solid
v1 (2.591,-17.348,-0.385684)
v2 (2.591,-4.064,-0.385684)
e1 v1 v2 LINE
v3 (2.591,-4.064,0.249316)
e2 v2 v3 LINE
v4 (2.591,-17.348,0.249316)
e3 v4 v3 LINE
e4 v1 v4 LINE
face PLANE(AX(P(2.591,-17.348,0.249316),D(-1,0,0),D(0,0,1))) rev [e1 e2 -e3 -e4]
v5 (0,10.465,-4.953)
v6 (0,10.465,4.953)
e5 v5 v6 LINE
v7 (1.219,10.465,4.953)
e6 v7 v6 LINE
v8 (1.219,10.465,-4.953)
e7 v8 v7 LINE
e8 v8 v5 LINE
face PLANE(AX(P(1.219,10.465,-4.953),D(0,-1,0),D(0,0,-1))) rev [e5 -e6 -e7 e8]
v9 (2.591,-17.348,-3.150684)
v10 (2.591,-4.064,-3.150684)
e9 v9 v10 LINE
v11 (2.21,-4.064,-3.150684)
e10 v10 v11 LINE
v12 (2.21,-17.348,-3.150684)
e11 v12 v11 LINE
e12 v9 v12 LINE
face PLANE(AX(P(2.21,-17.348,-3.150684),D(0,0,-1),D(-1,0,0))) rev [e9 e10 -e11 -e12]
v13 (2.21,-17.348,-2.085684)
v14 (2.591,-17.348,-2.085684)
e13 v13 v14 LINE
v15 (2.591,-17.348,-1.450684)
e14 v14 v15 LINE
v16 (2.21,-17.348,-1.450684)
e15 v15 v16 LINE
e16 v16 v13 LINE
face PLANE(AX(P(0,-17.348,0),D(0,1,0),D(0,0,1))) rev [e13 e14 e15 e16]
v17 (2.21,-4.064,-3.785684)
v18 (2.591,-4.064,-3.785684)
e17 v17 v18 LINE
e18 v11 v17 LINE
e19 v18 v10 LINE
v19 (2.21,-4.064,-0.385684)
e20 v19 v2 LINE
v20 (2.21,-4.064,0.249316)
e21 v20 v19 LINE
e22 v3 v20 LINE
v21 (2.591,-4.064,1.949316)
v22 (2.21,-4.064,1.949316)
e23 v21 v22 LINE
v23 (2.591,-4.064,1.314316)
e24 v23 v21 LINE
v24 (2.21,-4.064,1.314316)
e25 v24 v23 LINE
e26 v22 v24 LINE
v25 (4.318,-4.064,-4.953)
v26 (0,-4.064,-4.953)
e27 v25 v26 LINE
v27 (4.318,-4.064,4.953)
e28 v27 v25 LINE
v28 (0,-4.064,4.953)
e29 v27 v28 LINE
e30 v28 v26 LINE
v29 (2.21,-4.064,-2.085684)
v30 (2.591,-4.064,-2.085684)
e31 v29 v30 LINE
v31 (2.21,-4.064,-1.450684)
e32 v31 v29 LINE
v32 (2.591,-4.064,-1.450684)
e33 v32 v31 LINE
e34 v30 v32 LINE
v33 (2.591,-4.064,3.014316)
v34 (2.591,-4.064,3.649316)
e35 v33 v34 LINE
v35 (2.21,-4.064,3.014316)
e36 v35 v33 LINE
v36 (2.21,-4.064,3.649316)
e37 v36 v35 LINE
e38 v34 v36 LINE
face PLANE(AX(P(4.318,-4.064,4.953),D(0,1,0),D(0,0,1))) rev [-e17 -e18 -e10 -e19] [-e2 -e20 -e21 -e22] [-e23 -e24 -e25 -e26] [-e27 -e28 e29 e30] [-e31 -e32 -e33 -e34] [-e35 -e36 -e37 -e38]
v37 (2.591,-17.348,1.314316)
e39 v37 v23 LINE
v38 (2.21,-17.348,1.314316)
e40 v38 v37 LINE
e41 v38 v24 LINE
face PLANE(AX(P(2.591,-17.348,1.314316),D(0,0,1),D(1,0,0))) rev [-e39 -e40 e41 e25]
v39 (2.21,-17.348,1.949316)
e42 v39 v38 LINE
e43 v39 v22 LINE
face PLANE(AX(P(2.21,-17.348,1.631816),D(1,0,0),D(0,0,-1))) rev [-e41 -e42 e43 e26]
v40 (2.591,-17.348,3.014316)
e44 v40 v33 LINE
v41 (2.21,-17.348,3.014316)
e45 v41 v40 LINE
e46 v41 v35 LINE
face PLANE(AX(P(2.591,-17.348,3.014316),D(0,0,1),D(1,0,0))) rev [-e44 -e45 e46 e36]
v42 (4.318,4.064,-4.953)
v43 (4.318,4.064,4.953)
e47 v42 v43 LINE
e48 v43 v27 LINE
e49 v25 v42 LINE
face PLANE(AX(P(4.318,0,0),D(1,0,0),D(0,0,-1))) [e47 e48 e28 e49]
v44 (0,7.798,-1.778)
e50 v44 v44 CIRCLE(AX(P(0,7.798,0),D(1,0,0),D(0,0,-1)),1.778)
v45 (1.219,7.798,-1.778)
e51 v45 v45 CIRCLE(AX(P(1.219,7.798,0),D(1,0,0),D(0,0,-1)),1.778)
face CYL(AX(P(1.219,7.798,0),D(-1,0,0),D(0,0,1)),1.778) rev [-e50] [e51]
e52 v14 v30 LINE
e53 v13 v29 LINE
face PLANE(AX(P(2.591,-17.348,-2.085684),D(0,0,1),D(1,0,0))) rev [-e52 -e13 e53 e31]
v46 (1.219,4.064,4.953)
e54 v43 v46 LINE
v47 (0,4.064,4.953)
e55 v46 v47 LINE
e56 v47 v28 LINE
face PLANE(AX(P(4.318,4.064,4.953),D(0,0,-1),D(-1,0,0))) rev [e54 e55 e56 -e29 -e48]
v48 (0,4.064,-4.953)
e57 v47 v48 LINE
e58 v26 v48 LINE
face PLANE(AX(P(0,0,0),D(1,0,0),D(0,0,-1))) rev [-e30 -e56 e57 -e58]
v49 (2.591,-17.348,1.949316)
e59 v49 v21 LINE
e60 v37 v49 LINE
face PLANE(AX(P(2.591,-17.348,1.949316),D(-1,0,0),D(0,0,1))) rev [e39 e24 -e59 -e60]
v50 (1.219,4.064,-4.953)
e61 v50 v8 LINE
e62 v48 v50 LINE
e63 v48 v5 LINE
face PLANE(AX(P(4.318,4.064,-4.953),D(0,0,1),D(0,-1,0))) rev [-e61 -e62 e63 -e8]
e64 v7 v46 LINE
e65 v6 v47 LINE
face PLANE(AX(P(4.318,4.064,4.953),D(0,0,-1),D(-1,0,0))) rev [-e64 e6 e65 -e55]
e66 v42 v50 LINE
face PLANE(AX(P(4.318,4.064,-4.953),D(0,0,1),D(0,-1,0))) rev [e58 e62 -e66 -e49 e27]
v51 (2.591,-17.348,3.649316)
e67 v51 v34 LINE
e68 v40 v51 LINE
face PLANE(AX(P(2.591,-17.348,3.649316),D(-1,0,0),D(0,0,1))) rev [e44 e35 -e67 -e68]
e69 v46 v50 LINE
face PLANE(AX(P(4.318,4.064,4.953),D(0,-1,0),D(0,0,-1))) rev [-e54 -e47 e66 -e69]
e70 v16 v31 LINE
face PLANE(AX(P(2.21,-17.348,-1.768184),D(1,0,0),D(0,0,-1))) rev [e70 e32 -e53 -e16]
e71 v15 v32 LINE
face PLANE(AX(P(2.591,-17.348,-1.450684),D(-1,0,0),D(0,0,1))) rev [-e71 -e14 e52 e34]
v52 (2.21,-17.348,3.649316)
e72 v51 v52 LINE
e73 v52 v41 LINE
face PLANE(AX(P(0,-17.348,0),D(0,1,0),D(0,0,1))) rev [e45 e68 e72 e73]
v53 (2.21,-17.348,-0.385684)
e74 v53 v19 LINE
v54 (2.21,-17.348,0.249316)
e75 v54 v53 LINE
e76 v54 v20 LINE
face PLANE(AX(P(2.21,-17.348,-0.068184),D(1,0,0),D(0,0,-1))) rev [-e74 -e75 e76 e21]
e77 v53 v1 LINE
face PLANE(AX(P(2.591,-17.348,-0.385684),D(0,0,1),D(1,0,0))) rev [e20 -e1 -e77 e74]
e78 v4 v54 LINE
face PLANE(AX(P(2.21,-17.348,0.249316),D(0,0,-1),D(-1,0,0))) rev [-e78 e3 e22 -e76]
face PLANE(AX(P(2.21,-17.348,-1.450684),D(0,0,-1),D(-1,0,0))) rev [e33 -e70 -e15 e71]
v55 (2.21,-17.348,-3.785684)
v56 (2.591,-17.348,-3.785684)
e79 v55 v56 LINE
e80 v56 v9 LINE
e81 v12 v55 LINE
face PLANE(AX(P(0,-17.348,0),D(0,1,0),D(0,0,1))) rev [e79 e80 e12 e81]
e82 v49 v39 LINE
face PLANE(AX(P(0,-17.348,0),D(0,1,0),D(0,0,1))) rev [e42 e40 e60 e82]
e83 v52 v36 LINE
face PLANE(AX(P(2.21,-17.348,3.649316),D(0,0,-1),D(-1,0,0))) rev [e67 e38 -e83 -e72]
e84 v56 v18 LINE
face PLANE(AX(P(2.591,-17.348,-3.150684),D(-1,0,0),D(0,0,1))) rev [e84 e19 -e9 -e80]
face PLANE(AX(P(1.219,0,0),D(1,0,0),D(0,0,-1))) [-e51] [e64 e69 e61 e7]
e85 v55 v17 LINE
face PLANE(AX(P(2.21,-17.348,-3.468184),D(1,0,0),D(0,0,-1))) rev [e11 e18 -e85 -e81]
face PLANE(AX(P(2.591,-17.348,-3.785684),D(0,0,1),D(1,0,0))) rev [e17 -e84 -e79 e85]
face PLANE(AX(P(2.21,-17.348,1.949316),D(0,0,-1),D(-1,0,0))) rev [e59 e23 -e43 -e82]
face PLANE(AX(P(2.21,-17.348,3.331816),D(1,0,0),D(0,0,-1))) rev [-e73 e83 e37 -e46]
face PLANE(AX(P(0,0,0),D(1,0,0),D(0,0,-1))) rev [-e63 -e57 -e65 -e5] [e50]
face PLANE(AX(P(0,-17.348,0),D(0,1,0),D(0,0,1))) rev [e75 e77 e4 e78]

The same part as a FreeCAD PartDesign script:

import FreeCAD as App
import Part
import Sketcher
from FreeCAD import Vector
Q = App.Units.Quantity


def add_polygon(sketch, points):
    """Adds a closed chain of lines whose ends are joined by coincident constraints."""
    first, n = sketch.GeometryCount, len(points)
    for a, b in zip(points, points[1:] + points[:1]):
        sketch.addGeometry(Part.LineSegment(App.Vector(*a, 0), App.Vector(*b, 0)), False)
    for i in range(n):
        sketch.addConstraint(Sketcher.Constraint("Coincident", first + i, 2, first + (i + 1) % n, 1))

doc = App.newDocument("Part")
params = doc.addObject("Spreadsheet::Sheet", "Params")
for row, (alias, value) in enumerate([
    ("sketch1_width", "0.32 in"),
    ("sketch1_height", "0.39 in"),
    ("pad1_length", "0.17 in"),
    ("sketch2_diameter", "0.14 in"),
    ("sketch2_height", "0.39 in"),
    ("pad2_length", "1.219 mm"),
    ("sketch3_width", "0.015 in"),
    ("sketch3_height", "0.025 in"),
    ("pad3_length", "13.284 mm"),
], start=1):
    params.set(f"A{row}", alias)
    params.set(f"B{row}", "=" + value)
    params.setAlias(f"B{row}", alias)

body = doc.addObject("PartDesign::Body", "Body")

# Sketch on YZ plane
sketch1 = body.newObject("Sketcher::SketchObject", "Sketch")
sketch1.AttachmentSupport = (doc.getObject("YZ_Plane"), [""])
sketch1.MapMode = "FlatFace"
add_polygon(sketch1, [(4.064, 4.953), (-4.064, 4.953), (-4.064, -4.953), (4.064, -4.953)])  # lines 0-3
sketch1.addConstraint(Sketcher.Constraint("Horizontal", 0))
sketch1.addConstraint(Sketcher.Constraint("Vertical", 1))
sketch1.addConstraint(Sketcher.Constraint("Horizontal", 2))
sketch1.addConstraint(Sketcher.Constraint("Vertical", 3))
sketch1.addConstraint(Sketcher.Constraint("Symmetric", 0, 2, 2, 2, -1, 1))
sketch1.addConstraint(Sketcher.Constraint("DistanceX", 0, 2, 0, 1, Q("0.32 in")))
sketch1.addConstraint(Sketcher.Constraint("DistanceY", 1, 2, 1, 1, Q("0.39 in")))
sketch1.setExpression("Constraints[9]", "Params.sketch1_width")
sketch1.setExpression("Constraints[10]", "Params.sketch1_height")
pad1 = body.newObject("PartDesign::Pad", "Pad")
pad1.Profile = sketch1
pad1.setExpression("Length", "Params.pad1_length")

# Sketch on YZ plane
sketch2 = body.newObject("Sketcher::SketchObject", "Sketch001")
sketch2.AttachmentSupport = (doc.getObject("YZ_Plane"), [""])
sketch2.MapMode = "FlatFace"
add_polygon(sketch2, [(10.465, 4.953), (4.064, 4.953), (4.064, -4.953), (10.465, -4.953)])  # lines 0-3
sketch2.addGeometry(Part.Circle(Vector(7.798, 0, 0), Vector(0, 0, 1), 1.778), False)  # 4
sketch2.addConstraint(Sketcher.Constraint("Horizontal", 0))
sketch2.addConstraint(Sketcher.Constraint("Vertical", 1))
sketch2.addConstraint(Sketcher.Constraint("Horizontal", 2))
sketch2.addConstraint(Sketcher.Constraint("Vertical", 3))
sketch2.addConstraint(Sketcher.Constraint("PointOnObject", 4, 3, -1))
sketch2.addConstraint(Sketcher.Constraint("Diameter", 4, Q("0.14 in")))
sketch2.addConstraint(Sketcher.Constraint("DistanceY", 1, 2, 1, 1, Q("0.39 in")))
sketch2.addConstraint(Sketcher.Constraint("DistanceX", -1, 1, 0, 2, Q("0.16 in")))
sketch2.addConstraint(Sketcher.Constraint("DistanceY", -1, 1, 0, 2, Q("0.195 in")))
sketch2.addConstraint(Sketcher.Constraint("DistanceX", 4, 3, 2, 2, Q("0.105 in")))
sketch2.addConstraint(Sketcher.Constraint("DistanceX", 0, 2, 0, 1, 6.401))
sketch2.setExpression("Constraints[9]", "Params.sketch2_diameter")
sketch2.setExpression("Constraints[10]", "Params.sketch2_height")
pad2 = body.newObject("PartDesign::Pad", "Pad001")
pad2.Profile = sketch2
pad2.setExpression("Length", "Params.pad2_length")

# Sketch on XZ plane
sketch3 = body.newObject("Sketcher::SketchObject", "Sketch002")
sketch3.AttachmentSupport = (doc.getObject("XZ_Plane"), [""])
sketch3.MapMode = "FlatFace"
sketch3.AttachmentOffset = App.Placement(Vector(0, 0, 0.16 * 25.4), App.Rotation())
add_polygon(sketch3, [(2.591, 1.314316), (2.591, 1.949316), (2.21, 1.949316), (2.21, 1.314316)])  # lines 0-3
add_polygon(sketch3, [(2.21, 0.249316), (2.21, -0.385684), (2.591, -0.385684), (2.591, 0.249316)])  # lines 4-7
add_polygon(sketch3, [(2.591, 3.014316), (2.591, 3.649316), (2.21, 3.649316), (2.21, 3.014316)])  # lines 8-11
add_polygon(sketch3, [(2.591, -2.085684), (2.591, -1.450684), (2.21, -1.450684), (2.21, -2.085684)])  # lines 12-15
add_polygon(sketch3, [(2.591, -3.785684), (2.591, -3.150684), (2.21, -3.150684), (2.21, -3.785684)])  # lines 16-19
sketch3.addConstraint(Sketcher.Constraint("Vertical", 0))
sketch3.addConstraint(Sketcher.Constraint("Horizontal", 1))
sketch3.addConstraint(Sketcher.Constraint("Vertical", 2))
sketch3.addConstraint(Sketcher.Constraint("Horizontal", 3))
sketch3.addConstraint(Sketcher.Constraint("Vertical", 4))
sketch3.addConstraint(Sketcher.Constraint("Horizontal", 5))
sketch3.addConstraint(Sketcher.Constraint("Vertical", 6))
sketch3.addConstraint(Sketcher.Constraint("Horizontal", 7))
sketch3.addConstraint(Sketcher.Constraint("Vertical", 8))
sketch3.addConstraint(Sketcher.Constraint("Horizontal", 9))
sketch3.addConstraint(Sketcher.Constraint("Vertical", 10))
sketch3.addConstraint(Sketcher.Constraint("Horizontal", 11))
sketch3.addConstraint(Sketcher.Constraint("Vertical", 12))
sketch3.addConstraint(Sketcher.Constraint("Horizontal", 13))
sketch3.addConstraint(Sketcher.Constraint("Vertical", 14))
sketch3.addConstraint(Sketcher.Constraint("Horizontal", 15))
sketch3.addConstraint(Sketcher.Constraint("Vertical", 16))
sketch3.addConstraint(Sketcher.Constraint("Horizontal", 17))
sketch3.addConstraint(Sketcher.Constraint("Vertical", 18))
sketch3.addConstraint(Sketcher.Constraint("Horizontal", 19))
sketch3.addConstraint(Sketcher.Constraint("Vertical", 2, 2, 4, 2))
sketch3.addConstraint(Sketcher.Constraint("Vertical", 3, 2, 5, 2))
sketch3.addConstraint(Sketcher.Constraint("Vertical", 6, 2, 8, 2))
sketch3.addConstraint(Sketcher.Constraint("Vertical", 7, 2, 9, 2))
sketch3.addConstraint(Sketcher.Constraint("Vertical", 11, 2, 12, 2))
sketch3.addConstraint(Sketcher.Constraint("Vertical", 10, 2, 13, 2))
sketch3.addConstraint(Sketcher.Constraint("Vertical", 15, 2, 16, 2))
sketch3.addConstraint(Sketcher.Constraint("Vertical", 14, 2, 17, 2))
sketch3.addConstraint(Sketcher.Constraint("Equal", 2, 4))
sketch3.addConstraint(Sketcher.Constraint("Equal", 6, 8))
sketch3.addConstraint(Sketcher.Constraint("Equal", 10, 12))
sketch3.addConstraint(Sketcher.Constraint("Equal", 14, 16))
sketch3.addConstraint(Sketcher.Constraint("DistanceX", 1, 2, 1, 1, Q("0.015 in")))
sketch3.addConstraint(Sketcher.Constraint("DistanceY", 0, 1, 0, 2, Q("0.025 in")))
sketch3.addConstraint(Sketcher.Constraint("DistanceX", -1, 1, 0, 2, 2.591))
sketch3.addConstraint(Sketcher.Constraint("DistanceY", 4, 2, 2, 2, 1.7))
sketch3.addConstraint(Sketcher.Constraint("DistanceY", 0, 2, 8, 2, 1.7))
sketch3.addConstraint(Sketcher.Constraint("DistanceY", 12, 2, 5, 2, 1.065))
sketch3.addConstraint(Sketcher.Constraint("DistanceY", 16, 2, 15, 2, 1.065))
sketch3.addConstraint(Sketcher.Constraint("DistanceY", -1, 1, 0, 2, 1.949316))
sketch3.setExpression("Constraints[52]", "Params.sketch3_width")
sketch3.setExpression("Constraints[53]", "Params.sketch3_height")
pad3 = body.newObject("PartDesign::Pad", "Pad002")
pad3.Profile = sketch3
pad3.setExpression("Length", "Params.pad3_length")

doc.recompute()
